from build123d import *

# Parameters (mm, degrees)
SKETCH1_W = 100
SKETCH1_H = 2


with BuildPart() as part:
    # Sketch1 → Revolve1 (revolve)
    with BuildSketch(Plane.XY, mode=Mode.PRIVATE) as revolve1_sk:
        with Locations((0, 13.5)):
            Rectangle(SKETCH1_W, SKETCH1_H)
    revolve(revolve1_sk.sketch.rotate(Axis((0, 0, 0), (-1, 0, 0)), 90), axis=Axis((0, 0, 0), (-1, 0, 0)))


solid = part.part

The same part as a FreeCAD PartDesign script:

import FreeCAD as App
import Part
import Sketcher

V = App.Vector


def add_polygon(sketch, points):
    """Adds a closed chain of lines whose ends are joined by coincident constraints."""
    first, n = sketch.GeometryCount, len(points)
    for a, b in zip(points, points[1:] + points[:1]):
        sketch.addGeometry(Part.LineSegment(App.Vector(*a, 0), App.Vector(*b, 0)), False)
    for i in range(n):
        sketch.addConstraint(Sketcher.Constraint("Coincident", first + i, 2, first + (i + 1) % n, 1))

doc = App.newDocument("Part")
body = doc.addObject("PartDesign::Body", "Body")

# Sketch on XY plane
sketch1 = doc.addObject("Sketcher::SketchObject", "Sketch")
body.addObject(sketch1)
sketch1.AttachmentSupport = (doc.XY_Plane, [""])
sketch1.MapMode = "FlatFace"
add_polygon(sketch1, [(-50, 14.5), (-50, 12.5), (50, 12.5), (50, 14.5)])  # lines 0-3
sketch1.addConstraint(Sketcher.Constraint("Vertical", 0))
sketch1.addConstraint(Sketcher.Constraint("Horizontal", 1))
sketch1.addConstraint(Sketcher.Constraint("Vertical", 2))
sketch1.addConstraint(Sketcher.Constraint("Horizontal", 3))
sketch1.addConstraint(Sketcher.Constraint("DistanceX", 1, 1, 1, 2, 100.0))
sketch1.addConstraint(Sketcher.Constraint("DistanceY", 0, 2, 0, 1, 2.0))
sketch1.addConstraint(Sketcher.Constraint("DistanceX", 0, 2, -1, 1, 50.0))
sketch1.addConstraint(Sketcher.Constraint("DistanceY", -1, 1, 0, 2, 12.5))
revolution = doc.addObject("PartDesign::Revolution", "Revolution")
body.addObject(revolution)
revolution.Profile = sketch1
revolution.ReferenceAxis = (sketch1, ["H_Axis"])
revolution.Angle = 360

doc.recompute()
